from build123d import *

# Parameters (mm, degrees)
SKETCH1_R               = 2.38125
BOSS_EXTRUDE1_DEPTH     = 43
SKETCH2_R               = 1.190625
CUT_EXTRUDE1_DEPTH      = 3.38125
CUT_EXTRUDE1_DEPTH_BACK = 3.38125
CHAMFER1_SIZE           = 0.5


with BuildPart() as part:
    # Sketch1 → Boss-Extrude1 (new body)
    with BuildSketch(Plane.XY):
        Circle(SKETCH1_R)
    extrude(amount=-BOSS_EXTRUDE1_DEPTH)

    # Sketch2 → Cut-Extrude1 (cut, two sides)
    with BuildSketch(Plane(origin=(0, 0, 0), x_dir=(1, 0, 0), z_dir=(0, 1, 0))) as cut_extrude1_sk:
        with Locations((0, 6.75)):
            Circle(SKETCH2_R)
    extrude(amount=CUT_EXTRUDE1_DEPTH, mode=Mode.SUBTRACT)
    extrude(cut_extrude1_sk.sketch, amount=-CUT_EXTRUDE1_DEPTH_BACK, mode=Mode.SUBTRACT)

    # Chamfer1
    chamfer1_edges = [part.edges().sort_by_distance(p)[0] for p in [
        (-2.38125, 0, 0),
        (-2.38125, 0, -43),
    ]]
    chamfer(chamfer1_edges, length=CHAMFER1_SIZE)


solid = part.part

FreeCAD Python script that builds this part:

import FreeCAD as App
import Part
import Sketcher

V = App.Vector
Q = App.Units.Quantity


def edges_at(feature, points):
    """Names of the edges that pass closest to the given points."""
    edges = feature.Shape.Edges
    near = lambda p: min(range(len(edges)), key=lambda i: edges[i].distToShape(Part.Vertex(*p))[0])
    return sorted({f"Edge{near(p) + 1}" for p in points})

doc = App.newDocument("Part")
body = doc.addObject("PartDesign::Body", "Body")

# Sketch on XY plane
sketch1 = body.newObject("Sketcher::SketchObject", "Sketch")
sketch1.AttachmentSupport = (doc.getObject("XY_Plane"), [""])
sketch1.MapMode = "FlatFace"
sketch1.addGeometry(Part.Circle(V(0, 0, 0), V(0, 0, 1), 2.4), False)
sketch1.addConstraint([
    Sketcher.Constraint("Coincident", 0, 3, -1, 1),
    Sketcher.Constraint("Diameter", 0, Q("4.7625 mm")),
])
pad1 = body.newObject("PartDesign::Pad", "Pad")
pad1.Profile = sketch1
pad1.Length = 43
pad1.Reversed = True

# Sketch on XZ plane
sketch2 = body.newObject("Sketcher::SketchObject", "Sketch001")
sketch2.AttachmentSupport = (doc.getObject("XZ_Plane"), [""])
sketch2.MapMode = "FlatFace"
sketch2.addGeometry(Part.Circle(V(0, -6.8, 0), V(0, 0, 1), 1.2), False)
sketch2.addConstraint([
    Sketcher.Constraint("PointOnObject", 0, 3, -2),
    Sketcher.Constraint("Diameter", 0, Q("2.38125 mm")),
    Sketcher.Constraint("DistanceY", 0, 3, -1, 1, Q("6.75 mm")),
])
pocket1 = body.newObject("PartDesign::Pocket", "Pocket")
pocket1.Profile = sketch2
pocket1.Type = "ThroughAll"
pocket1.Midplane = True
doc.recompute()

chamfer = body.newObject("PartDesign::Chamfer", "Chamfer")
chamfer.Base = (pocket1, edges_at(pocket1, [(-2.381, 0, 0), (-2.381, 0, -43)]))
chamfer.Size = 0.5

doc.recompute()
